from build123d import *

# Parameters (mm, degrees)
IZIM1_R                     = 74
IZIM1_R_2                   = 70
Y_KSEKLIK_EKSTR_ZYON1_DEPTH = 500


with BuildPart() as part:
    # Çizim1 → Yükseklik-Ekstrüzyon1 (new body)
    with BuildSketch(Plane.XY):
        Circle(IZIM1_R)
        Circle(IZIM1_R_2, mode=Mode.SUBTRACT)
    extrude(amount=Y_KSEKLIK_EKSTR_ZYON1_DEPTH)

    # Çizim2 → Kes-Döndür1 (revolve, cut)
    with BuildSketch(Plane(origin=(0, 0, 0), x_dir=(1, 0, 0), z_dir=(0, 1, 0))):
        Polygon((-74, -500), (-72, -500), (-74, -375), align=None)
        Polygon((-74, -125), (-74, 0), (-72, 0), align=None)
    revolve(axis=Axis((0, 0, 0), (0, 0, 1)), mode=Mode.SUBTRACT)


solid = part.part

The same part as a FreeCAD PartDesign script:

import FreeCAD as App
import Part
import Sketcher


def add_polygon(sketch, points):
    """Adds a closed chain of lines whose ends are joined by coincident constraints."""
    first, n = sketch.GeometryCount, len(points)
    for a, b in zip(points, points[1:] + points[:1]):
        sketch.addGeometry(Part.LineSegment(App.Vector(*a, 0), App.Vector(*b, 0)), False)
    for i in range(n):
        sketch.addConstraint(Sketcher.Constraint("Coincident", first + i, 2, first + (i + 1) % n, 1))

doc = App.newDocument("Part")
body = doc.addObject("PartDesign::Body", "Body")

sketch1 = body.newObject("Sketcher::SketchObject", "Sketch")
sketch1.AttachmentSupport = (doc.getObject("XY_Plane"), [""])
sketch1.MapMode = "FlatFace"
sketch1.addGeometry([
    Part.Circle(App.Vector(0, 0, 0), App.Vector(0, 0, 1), 74),
    Part.Circle(App.Vector(0, 0, 0), App.Vector(0, 0, 1), 70),
], False)
sketch1.addConstraint([
    Sketcher.Constraint("Coincident", 0, 3, -1, 1),
    Sketcher.Constraint("Coincident", 1, 3, -1, 1),
    Sketcher.Constraint("Diameter", 0, 148.0),
    Sketcher.Constraint("Diameter", 1, 140.0),
])
pad1 = body.newObject("PartDesign::Pad", "Pad")
pad1.Profile = sketch1
pad1.Length = 500

sketch2 = body.newObject("Sketcher::SketchObject", "Sketch001")
sketch2.AttachmentSupport = (doc.getObject("XZ_Plane"), [""])
sketch2.MapMode = "FlatFace"
add_polygon(sketch2, [(-74, 500), (-72, 500), (-74, 375)])
add_polygon(sketch2, [(-74, 0), (-74, 125), (-72, 0)])
sketch2.addConstraint([
    Sketcher.Constraint("Horizontal", 0),
    Sketcher.Constraint("Vertical", 2),
    Sketcher.Constraint("Vertical", 3),
    Sketcher.Constraint("Horizontal", 5),
    Sketcher.Constraint("PointOnObject", 4, 2, -1),
    Sketcher.Constraint("Vertical", 2, 2, 3, 2),
    Sketcher.Constraint("Vertical", 0, 2, 4, 2),
    Sketcher.Constraint("Equal", 2, 3),
    Sketcher.Constraint("DistanceX", 0, 1, 0, 2, 2.0),
    Sketcher.Constraint("DistanceY", 2, 1, 2, 2, 125.0),
    Sketcher.Constraint("DistanceX", 0, 2, -1, 1, 72.0),
    Sketcher.Constraint("DistanceY", -1, 1, 0, 2, 500.0),
])
groove = body.newObject("PartDesign::Groove", "Groove")
groove.Profile = sketch2
groove.ReferenceAxis = (sketch2, ["V_Axis"])
groove.Angle = 360

doc.recompute()
